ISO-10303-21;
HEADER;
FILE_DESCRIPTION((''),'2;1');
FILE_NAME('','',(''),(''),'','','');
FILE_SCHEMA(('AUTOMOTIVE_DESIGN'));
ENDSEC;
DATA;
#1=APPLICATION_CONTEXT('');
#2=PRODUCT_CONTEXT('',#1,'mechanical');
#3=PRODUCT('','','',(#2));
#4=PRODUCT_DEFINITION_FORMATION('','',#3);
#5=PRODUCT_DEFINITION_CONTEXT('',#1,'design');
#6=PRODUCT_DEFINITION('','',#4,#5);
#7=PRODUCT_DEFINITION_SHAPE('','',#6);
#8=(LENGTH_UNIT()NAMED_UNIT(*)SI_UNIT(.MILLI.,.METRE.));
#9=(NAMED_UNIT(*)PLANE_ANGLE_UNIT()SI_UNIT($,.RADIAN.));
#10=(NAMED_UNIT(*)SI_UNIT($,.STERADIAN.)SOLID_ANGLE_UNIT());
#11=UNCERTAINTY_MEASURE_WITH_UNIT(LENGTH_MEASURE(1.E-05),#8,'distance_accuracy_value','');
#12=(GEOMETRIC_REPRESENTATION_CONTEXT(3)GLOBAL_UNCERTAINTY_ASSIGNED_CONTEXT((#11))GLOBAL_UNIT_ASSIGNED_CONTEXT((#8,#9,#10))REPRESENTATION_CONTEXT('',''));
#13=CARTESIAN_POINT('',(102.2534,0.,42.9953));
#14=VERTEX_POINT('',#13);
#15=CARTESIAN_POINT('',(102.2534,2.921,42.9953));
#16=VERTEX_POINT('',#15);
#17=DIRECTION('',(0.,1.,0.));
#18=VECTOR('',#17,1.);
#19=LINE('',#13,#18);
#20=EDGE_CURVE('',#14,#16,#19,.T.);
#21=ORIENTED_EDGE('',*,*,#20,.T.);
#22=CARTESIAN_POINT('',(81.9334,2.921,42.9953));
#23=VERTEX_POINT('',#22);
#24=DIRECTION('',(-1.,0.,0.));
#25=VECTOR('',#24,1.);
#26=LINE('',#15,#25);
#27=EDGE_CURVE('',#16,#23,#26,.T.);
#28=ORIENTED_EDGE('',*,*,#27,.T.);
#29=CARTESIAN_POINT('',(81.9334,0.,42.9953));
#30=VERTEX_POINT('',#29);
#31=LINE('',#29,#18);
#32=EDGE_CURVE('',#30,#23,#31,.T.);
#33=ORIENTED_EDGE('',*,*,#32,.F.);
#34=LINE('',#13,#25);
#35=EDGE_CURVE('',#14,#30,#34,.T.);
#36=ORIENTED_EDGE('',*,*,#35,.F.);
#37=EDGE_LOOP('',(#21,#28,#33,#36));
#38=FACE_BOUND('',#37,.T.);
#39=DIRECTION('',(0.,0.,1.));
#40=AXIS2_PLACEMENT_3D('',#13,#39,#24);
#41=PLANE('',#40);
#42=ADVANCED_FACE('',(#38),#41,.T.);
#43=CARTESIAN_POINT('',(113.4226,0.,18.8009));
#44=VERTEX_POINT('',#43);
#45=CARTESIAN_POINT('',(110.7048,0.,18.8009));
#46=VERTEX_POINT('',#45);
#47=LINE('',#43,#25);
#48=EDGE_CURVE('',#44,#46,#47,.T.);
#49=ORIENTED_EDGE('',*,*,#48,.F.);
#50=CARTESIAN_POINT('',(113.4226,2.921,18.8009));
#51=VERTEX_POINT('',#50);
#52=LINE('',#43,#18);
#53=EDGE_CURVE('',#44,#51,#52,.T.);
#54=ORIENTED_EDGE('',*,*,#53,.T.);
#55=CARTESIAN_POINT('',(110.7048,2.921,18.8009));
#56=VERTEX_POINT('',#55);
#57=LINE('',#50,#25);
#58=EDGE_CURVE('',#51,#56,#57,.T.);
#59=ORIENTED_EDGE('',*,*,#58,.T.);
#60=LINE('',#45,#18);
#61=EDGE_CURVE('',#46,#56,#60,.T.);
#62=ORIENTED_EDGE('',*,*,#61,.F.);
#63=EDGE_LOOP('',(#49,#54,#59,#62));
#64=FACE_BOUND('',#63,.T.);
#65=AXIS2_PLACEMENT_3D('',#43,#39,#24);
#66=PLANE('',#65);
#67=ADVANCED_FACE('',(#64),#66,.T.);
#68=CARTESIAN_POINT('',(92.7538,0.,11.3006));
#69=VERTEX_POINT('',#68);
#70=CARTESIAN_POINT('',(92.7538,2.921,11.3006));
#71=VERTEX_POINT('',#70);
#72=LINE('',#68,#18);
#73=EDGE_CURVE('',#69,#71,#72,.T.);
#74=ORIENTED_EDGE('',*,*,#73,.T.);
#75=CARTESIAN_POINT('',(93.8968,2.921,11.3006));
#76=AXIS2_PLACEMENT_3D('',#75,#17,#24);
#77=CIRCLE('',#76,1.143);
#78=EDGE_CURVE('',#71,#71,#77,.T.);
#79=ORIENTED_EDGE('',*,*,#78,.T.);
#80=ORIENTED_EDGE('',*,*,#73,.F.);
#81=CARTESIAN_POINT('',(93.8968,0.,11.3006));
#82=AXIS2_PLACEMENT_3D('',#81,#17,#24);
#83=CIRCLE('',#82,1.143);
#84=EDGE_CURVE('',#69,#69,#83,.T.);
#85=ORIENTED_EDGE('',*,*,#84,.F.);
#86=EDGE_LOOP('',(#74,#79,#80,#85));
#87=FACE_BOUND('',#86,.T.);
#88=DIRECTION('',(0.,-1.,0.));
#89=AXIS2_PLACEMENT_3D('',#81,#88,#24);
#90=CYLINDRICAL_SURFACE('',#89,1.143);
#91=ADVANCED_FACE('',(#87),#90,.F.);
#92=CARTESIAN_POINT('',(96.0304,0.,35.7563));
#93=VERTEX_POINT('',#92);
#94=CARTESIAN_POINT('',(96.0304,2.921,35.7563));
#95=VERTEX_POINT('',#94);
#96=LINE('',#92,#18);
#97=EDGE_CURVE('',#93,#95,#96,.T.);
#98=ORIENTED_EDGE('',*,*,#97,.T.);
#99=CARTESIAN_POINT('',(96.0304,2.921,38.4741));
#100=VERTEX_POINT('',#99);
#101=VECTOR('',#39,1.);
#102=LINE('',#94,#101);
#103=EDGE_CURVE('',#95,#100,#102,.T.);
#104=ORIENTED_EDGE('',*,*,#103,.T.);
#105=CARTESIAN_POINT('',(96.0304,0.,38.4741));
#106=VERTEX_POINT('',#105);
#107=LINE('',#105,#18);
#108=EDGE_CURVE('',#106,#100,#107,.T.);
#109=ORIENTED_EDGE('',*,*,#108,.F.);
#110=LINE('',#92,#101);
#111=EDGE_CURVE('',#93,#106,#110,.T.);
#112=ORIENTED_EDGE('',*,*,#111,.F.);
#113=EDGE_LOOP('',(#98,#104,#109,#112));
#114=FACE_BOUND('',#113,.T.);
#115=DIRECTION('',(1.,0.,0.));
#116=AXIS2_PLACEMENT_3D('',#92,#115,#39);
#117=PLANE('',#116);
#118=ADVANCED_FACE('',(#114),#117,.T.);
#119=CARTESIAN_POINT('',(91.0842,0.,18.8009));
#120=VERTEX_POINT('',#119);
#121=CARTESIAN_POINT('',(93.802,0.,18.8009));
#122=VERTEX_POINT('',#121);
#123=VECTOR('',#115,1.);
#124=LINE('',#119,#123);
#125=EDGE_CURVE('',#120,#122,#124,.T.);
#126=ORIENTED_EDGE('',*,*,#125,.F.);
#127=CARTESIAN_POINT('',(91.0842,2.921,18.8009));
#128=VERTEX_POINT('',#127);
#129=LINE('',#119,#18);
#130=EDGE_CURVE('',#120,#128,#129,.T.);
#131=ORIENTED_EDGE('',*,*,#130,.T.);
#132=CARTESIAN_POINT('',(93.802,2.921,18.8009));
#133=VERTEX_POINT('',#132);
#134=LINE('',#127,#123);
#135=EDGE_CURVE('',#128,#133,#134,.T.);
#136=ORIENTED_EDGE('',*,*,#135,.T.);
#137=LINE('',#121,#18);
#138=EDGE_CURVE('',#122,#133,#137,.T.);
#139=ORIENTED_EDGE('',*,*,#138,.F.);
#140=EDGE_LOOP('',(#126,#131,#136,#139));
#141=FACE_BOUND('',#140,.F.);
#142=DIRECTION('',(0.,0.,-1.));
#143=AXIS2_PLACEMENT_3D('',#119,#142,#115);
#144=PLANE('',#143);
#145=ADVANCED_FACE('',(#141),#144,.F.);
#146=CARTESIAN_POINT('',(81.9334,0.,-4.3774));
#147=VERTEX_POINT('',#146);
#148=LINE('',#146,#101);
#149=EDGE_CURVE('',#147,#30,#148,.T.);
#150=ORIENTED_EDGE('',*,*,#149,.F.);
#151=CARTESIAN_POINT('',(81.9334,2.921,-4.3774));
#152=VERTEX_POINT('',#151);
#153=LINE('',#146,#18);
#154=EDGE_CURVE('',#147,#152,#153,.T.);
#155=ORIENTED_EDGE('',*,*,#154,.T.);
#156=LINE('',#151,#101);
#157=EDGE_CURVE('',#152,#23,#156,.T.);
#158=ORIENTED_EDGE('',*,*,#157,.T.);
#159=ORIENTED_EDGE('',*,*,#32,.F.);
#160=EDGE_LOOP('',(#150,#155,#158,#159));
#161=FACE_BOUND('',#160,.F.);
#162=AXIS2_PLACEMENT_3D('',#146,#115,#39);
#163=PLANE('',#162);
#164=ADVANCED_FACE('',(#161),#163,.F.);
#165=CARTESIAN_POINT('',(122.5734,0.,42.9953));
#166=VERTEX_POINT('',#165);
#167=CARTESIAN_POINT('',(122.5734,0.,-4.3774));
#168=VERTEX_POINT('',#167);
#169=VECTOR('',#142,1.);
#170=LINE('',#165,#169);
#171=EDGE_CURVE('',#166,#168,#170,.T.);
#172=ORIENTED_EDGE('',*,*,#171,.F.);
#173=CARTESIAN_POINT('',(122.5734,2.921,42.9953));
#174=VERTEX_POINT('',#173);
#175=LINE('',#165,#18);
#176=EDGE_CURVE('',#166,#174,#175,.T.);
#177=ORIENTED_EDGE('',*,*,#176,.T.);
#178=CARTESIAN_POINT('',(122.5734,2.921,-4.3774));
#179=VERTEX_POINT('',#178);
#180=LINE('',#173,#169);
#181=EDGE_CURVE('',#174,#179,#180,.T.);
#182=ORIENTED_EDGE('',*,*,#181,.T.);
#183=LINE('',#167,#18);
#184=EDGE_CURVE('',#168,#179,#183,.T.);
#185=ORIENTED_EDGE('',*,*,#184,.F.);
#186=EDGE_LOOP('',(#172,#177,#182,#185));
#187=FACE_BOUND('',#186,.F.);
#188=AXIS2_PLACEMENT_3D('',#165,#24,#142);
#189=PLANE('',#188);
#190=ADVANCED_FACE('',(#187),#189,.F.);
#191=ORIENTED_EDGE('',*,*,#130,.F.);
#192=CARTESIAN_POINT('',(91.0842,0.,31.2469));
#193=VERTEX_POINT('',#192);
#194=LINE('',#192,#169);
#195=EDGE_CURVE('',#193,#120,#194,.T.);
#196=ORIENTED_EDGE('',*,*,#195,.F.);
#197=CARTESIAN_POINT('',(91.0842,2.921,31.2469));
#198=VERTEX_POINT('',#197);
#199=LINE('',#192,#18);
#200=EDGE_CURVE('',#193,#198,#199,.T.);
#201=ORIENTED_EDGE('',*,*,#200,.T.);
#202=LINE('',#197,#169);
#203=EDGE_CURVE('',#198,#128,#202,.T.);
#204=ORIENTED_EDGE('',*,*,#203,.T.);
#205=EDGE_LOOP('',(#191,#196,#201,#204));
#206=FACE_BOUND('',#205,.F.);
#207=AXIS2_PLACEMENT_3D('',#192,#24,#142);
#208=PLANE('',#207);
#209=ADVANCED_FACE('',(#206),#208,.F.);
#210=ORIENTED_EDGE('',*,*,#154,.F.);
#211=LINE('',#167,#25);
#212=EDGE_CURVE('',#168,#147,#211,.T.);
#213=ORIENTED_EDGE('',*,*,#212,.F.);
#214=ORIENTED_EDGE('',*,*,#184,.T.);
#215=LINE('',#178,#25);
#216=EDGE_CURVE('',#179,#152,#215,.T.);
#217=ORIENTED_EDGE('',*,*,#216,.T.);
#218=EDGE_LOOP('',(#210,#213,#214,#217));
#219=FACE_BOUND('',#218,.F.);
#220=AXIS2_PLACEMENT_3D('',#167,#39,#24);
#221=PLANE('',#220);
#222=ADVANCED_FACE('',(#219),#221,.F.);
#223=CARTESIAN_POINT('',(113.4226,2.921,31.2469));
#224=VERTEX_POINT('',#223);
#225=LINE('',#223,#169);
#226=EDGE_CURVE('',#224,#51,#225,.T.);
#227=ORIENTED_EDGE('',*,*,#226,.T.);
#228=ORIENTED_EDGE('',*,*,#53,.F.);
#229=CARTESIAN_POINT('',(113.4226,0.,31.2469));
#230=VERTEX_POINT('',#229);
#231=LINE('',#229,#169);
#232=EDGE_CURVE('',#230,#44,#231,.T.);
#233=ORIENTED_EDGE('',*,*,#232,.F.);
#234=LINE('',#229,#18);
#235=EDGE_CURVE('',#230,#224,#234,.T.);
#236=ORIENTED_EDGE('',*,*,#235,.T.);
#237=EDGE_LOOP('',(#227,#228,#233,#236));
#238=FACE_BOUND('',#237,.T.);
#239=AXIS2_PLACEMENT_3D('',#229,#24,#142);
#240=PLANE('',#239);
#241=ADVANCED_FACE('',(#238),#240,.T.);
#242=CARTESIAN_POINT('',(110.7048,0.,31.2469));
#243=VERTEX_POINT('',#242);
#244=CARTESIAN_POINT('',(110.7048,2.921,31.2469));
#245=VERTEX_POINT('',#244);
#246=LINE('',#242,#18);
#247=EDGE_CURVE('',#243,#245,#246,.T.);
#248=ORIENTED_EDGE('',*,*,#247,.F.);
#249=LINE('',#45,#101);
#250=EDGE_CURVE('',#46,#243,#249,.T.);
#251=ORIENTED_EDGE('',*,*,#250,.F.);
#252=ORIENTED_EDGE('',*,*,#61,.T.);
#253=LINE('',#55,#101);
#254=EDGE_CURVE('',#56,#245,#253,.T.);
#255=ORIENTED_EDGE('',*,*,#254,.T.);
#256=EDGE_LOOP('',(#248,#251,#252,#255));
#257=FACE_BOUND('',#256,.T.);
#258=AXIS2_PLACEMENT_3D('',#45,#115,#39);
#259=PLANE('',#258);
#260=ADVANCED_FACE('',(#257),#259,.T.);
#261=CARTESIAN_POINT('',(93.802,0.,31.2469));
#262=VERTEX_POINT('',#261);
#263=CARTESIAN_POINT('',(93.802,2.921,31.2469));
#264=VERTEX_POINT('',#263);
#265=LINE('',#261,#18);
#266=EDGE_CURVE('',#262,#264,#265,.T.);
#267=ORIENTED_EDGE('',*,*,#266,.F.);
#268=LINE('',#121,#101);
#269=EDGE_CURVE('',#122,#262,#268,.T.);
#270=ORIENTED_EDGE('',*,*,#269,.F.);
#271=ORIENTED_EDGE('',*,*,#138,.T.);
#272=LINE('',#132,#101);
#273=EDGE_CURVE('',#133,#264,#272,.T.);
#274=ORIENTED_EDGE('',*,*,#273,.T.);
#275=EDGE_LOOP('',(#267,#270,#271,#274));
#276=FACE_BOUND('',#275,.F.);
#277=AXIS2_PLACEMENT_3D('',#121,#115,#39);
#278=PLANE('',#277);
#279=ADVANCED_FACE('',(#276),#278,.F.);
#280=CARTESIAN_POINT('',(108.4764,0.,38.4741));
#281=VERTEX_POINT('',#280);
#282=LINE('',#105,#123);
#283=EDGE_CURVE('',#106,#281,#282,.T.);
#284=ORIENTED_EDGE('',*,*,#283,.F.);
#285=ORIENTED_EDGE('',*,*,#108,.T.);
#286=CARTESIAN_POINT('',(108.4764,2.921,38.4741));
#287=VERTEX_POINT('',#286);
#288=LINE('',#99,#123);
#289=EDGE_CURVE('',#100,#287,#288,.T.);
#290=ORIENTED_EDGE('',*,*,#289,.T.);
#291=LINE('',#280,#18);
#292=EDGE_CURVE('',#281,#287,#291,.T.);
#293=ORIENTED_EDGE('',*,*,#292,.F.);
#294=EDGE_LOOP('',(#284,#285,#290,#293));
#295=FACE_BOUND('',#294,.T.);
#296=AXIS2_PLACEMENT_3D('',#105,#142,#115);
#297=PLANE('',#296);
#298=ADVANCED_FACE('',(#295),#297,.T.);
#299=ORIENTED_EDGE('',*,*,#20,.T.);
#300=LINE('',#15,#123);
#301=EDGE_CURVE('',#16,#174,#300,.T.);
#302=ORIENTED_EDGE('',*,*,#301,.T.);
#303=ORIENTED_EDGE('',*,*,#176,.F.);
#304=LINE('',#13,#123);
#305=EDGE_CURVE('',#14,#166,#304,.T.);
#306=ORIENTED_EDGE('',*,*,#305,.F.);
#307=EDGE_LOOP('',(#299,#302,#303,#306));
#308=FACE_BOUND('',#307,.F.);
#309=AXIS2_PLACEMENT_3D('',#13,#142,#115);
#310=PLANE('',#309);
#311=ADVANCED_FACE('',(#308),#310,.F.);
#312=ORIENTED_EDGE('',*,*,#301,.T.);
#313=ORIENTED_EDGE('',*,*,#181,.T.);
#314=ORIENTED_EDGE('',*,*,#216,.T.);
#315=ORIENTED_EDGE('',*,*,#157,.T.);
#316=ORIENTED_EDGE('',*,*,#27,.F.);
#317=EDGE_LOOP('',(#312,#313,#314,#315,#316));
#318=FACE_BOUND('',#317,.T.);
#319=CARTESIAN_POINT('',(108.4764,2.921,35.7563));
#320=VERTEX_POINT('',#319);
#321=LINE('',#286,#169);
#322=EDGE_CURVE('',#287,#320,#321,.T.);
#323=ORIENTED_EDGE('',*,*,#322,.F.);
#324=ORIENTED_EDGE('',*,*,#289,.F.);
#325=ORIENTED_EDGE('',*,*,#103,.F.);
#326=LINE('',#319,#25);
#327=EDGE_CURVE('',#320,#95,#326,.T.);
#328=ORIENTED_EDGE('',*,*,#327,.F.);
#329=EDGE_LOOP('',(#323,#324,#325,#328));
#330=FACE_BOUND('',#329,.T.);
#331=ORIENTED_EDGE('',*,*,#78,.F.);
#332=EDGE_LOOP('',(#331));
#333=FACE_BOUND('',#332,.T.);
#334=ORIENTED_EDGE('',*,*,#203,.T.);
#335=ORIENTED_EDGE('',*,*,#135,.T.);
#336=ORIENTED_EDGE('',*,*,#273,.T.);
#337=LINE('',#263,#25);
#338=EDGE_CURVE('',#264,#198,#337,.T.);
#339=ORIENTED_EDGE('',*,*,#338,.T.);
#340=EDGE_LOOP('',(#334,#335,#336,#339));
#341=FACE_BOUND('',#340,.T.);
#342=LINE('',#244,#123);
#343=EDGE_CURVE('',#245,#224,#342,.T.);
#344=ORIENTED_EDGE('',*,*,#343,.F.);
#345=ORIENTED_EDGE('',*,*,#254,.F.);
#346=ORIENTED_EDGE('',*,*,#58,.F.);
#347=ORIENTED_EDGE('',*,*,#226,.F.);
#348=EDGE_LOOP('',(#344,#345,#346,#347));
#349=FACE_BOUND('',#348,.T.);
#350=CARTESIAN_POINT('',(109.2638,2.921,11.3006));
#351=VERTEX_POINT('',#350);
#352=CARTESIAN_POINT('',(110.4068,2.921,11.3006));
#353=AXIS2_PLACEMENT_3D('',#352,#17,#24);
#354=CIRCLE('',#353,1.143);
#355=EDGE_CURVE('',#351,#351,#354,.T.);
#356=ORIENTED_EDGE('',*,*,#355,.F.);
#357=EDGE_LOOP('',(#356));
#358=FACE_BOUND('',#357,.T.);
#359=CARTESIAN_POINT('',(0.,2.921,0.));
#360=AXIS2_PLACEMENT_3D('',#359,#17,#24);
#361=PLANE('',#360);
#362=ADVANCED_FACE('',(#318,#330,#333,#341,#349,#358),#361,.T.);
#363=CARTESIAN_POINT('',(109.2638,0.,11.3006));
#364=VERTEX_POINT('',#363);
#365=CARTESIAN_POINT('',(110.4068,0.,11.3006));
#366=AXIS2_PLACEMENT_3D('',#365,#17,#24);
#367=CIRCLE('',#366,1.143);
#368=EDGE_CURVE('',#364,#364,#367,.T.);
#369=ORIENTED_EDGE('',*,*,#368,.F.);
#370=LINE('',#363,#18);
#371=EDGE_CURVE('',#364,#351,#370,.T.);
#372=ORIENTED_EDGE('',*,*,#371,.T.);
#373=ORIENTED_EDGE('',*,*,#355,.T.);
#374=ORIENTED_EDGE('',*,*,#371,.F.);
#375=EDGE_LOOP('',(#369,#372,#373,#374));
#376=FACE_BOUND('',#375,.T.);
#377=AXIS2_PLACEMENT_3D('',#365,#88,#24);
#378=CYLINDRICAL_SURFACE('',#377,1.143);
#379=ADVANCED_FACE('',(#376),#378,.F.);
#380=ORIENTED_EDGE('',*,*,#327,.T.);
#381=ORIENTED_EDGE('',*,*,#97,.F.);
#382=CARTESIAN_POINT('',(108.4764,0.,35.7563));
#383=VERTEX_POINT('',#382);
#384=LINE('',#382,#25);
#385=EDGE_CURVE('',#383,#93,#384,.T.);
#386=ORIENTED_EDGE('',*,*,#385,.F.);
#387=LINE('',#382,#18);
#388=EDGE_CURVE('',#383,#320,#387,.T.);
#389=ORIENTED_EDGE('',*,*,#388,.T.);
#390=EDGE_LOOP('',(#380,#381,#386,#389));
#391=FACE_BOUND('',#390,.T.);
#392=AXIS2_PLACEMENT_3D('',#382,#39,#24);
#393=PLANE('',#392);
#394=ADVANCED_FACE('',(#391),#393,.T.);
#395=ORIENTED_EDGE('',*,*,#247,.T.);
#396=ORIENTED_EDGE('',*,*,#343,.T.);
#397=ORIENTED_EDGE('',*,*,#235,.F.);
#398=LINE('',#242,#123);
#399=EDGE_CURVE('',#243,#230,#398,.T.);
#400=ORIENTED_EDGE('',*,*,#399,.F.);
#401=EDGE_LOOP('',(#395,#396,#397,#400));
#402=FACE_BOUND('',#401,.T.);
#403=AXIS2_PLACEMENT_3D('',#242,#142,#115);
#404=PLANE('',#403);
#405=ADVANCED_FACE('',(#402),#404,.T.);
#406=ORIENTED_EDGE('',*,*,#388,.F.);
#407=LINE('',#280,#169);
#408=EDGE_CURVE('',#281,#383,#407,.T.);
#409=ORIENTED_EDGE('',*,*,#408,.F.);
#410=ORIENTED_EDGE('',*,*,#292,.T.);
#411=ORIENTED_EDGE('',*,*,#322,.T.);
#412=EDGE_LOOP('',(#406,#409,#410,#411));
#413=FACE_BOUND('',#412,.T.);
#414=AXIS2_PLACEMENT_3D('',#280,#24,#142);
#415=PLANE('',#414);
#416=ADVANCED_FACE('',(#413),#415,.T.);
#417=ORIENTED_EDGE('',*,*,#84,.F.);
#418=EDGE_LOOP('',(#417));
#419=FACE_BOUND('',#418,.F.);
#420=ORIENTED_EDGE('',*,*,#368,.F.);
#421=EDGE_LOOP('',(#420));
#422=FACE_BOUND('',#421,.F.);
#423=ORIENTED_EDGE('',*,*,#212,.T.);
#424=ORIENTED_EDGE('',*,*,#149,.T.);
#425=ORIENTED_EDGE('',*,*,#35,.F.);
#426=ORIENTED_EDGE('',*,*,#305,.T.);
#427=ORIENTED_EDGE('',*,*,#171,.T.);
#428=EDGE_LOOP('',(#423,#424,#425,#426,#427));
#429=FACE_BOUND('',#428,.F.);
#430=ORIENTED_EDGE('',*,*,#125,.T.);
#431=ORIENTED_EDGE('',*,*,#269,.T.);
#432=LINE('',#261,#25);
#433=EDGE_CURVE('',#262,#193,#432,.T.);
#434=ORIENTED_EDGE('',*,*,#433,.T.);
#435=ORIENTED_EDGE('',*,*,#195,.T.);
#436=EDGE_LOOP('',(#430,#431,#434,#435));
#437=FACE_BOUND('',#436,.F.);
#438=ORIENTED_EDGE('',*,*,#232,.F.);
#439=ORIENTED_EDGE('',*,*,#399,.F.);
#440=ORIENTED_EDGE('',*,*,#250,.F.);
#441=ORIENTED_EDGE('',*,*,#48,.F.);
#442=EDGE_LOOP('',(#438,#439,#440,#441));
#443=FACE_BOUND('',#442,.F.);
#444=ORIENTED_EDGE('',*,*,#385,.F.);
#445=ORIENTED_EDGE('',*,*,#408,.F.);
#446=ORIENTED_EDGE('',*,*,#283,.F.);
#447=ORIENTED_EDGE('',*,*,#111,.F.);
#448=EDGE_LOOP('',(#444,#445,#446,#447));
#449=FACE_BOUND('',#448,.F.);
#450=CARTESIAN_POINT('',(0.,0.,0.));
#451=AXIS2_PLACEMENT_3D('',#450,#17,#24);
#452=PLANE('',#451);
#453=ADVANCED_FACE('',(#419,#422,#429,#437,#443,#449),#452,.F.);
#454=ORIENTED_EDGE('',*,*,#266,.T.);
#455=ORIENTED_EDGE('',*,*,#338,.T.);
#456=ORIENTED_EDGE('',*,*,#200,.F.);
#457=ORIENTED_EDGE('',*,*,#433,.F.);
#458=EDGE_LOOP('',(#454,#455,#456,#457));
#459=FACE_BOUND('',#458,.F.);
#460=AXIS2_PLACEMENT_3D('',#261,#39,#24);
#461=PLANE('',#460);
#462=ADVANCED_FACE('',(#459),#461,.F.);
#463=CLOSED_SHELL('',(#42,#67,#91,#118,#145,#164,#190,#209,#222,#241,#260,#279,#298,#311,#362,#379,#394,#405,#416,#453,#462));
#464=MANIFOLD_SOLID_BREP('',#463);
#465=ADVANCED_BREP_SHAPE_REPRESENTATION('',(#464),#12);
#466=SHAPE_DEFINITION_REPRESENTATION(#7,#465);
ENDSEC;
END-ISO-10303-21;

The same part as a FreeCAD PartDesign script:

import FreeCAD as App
import Part
import Sketcher
from FreeCAD import Vector
Q = App.Units.Quantity


def add_polygon(sketch, points):
    """Adds a closed chain of lines whose ends are joined by coincident constraints."""
    first, n = sketch.GeometryCount, len(points)
    for a, b in zip(points, points[1:] + points[:1]):
        sketch.addGeometry(Part.LineSegment(App.Vector(*a, 0), App.Vector(*b, 0)), False)
    for i in range(n):
        sketch.addConstraint(Sketcher.Constraint("Coincident", first + i, 2, first + (i + 1) % n, 1))

doc = App.newDocument("Part")
body = doc.addObject("PartDesign::Body", "Body")

# Sketch on XZ plane
sketch1 = body.newObject("Sketcher::SketchObject", "Sketch")
sketch1.AttachmentSupport = (doc.getObject("XZ_Plane"), [""])
sketch1.MapMode = "FlatFace"
add_polygon(sketch1, [(81.9, 43), (122.6, 43), (122.6, -4.4), (81.9, -4.4)])  # lines 0-3
sketch1.addGeometry(Part.Circle(Vector(110.4, 11.3, 0), Vector(0, 0, 1), 1.1), False)  # 4
sketch1.addGeometry(Part.Circle(Vector(93.9, 11.3, 0), Vector(0, 0, 1), 1.1), False)  # 5
add_polygon(sketch1, [(110.7, 18.8), (113.4, 18.8), (113.4, 31.2), (110.7, 31.2)])  # lines 6-9
add_polygon(sketch1, [(91.1, 31.2), (91.1, 18.8), (93.8, 18.8), (93.8, 31.2)])  # lines 10-13
add_polygon(sketch1, [(108.5, 38.5), (96, 38.5), (96, 35.8), (108.5, 35.8)])  # lines 14-17
sketch1.addConstraint([
    Sketcher.Constraint("Horizontal", 0),
    Sketcher.Constraint("Vertical", 1),
    Sketcher.Constraint("Horizontal", 2),
    Sketcher.Constraint("Vertical", 3),
    Sketcher.Constraint("Horizontal", 6),
    Sketcher.Constraint("Vertical", 7),
    Sketcher.Constraint("Horizontal", 8),
    Sketcher.Constraint("Vertical", 9),
    Sketcher.Constraint("Vertical", 10),
    Sketcher.Constraint("Horizontal", 11),
    Sketcher.Constraint("Vertical", 12),
    Sketcher.Constraint("Horizontal", 13),
    Sketcher.Constraint("Horizontal", 14),
    Sketcher.Constraint("Vertical", 15),
    Sketcher.Constraint("Horizontal", 16),
    Sketcher.Constraint("Vertical", 17),
    Sketcher.Constraint("Equal", 4, 5),
    Sketcher.Constraint("Horizontal", 4, 3, 5, 3),
    Sketcher.Constraint("Horizontal", 9, 2, 10, 2),
    Sketcher.Constraint("Horizontal", 8, 2, 12, 2),
    Sketcher.Constraint("Equal", 8, 11),
    Sketcher.Constraint("Equal", 16, 7),
    Sketcher.Constraint("Equal", 13, 15),
    Sketcher.Constraint("Diameter", 4, Q("0.09 in")),
    Sketcher.Constraint("DistanceX", 0, 1, 0, 2, Q("1.6 in")),
    Sketcher.Constraint("DistanceX", 14, 2, 14, 1, Q("0.49 in")),
    Sketcher.Constraint("DistanceX", 6, 1, 6, 2, Q("0.107 in")),
    Sketcher.Constraint("DistanceX", 5, 3, 4, 3, Q("0.65 in")),
    Sketcher.Constraint("DistanceX", -1, 1, 10, 2, Q("3.586 in")),
    Sketcher.Constraint("DistanceX", 4, 3, 0, 2, Q("0.479 in")),
    Sketcher.Constraint("DistanceX", 3, 2, 14, 2, Q("0.555 in")),
    Sketcher.Constraint("DistanceY", 14, 2, 3, 2, Q("0.178 in")),
    Sketcher.Constraint("DistanceY", 1, 2, 1, 1, Q("47.3727 mm")),
    Sketcher.Constraint("DistanceY", -1, 1, 4, 3, Q("0.4449 in")),
    Sketcher.Constraint("DistanceY", -1, 1, 6, 2, Q("0.7402 in")),
    Sketcher.Constraint("DistanceX", -1, 1, 4, 3, Q("110.4068 mm")),
    Sketcher.Constraint("DistanceY", -1, 1, 0, 2, Q("42.9953 mm")),
    Sketcher.Constraint("DistanceX", -1, 1, 6, 2, Q("113.4226 mm")),
])
pad1 = body.newObject("PartDesign::Pad", "Pad")
pad1.Profile = sketch1
pad1.Length = Q("0.115 in")
pad1.Reversed = True

doc.recompute()
